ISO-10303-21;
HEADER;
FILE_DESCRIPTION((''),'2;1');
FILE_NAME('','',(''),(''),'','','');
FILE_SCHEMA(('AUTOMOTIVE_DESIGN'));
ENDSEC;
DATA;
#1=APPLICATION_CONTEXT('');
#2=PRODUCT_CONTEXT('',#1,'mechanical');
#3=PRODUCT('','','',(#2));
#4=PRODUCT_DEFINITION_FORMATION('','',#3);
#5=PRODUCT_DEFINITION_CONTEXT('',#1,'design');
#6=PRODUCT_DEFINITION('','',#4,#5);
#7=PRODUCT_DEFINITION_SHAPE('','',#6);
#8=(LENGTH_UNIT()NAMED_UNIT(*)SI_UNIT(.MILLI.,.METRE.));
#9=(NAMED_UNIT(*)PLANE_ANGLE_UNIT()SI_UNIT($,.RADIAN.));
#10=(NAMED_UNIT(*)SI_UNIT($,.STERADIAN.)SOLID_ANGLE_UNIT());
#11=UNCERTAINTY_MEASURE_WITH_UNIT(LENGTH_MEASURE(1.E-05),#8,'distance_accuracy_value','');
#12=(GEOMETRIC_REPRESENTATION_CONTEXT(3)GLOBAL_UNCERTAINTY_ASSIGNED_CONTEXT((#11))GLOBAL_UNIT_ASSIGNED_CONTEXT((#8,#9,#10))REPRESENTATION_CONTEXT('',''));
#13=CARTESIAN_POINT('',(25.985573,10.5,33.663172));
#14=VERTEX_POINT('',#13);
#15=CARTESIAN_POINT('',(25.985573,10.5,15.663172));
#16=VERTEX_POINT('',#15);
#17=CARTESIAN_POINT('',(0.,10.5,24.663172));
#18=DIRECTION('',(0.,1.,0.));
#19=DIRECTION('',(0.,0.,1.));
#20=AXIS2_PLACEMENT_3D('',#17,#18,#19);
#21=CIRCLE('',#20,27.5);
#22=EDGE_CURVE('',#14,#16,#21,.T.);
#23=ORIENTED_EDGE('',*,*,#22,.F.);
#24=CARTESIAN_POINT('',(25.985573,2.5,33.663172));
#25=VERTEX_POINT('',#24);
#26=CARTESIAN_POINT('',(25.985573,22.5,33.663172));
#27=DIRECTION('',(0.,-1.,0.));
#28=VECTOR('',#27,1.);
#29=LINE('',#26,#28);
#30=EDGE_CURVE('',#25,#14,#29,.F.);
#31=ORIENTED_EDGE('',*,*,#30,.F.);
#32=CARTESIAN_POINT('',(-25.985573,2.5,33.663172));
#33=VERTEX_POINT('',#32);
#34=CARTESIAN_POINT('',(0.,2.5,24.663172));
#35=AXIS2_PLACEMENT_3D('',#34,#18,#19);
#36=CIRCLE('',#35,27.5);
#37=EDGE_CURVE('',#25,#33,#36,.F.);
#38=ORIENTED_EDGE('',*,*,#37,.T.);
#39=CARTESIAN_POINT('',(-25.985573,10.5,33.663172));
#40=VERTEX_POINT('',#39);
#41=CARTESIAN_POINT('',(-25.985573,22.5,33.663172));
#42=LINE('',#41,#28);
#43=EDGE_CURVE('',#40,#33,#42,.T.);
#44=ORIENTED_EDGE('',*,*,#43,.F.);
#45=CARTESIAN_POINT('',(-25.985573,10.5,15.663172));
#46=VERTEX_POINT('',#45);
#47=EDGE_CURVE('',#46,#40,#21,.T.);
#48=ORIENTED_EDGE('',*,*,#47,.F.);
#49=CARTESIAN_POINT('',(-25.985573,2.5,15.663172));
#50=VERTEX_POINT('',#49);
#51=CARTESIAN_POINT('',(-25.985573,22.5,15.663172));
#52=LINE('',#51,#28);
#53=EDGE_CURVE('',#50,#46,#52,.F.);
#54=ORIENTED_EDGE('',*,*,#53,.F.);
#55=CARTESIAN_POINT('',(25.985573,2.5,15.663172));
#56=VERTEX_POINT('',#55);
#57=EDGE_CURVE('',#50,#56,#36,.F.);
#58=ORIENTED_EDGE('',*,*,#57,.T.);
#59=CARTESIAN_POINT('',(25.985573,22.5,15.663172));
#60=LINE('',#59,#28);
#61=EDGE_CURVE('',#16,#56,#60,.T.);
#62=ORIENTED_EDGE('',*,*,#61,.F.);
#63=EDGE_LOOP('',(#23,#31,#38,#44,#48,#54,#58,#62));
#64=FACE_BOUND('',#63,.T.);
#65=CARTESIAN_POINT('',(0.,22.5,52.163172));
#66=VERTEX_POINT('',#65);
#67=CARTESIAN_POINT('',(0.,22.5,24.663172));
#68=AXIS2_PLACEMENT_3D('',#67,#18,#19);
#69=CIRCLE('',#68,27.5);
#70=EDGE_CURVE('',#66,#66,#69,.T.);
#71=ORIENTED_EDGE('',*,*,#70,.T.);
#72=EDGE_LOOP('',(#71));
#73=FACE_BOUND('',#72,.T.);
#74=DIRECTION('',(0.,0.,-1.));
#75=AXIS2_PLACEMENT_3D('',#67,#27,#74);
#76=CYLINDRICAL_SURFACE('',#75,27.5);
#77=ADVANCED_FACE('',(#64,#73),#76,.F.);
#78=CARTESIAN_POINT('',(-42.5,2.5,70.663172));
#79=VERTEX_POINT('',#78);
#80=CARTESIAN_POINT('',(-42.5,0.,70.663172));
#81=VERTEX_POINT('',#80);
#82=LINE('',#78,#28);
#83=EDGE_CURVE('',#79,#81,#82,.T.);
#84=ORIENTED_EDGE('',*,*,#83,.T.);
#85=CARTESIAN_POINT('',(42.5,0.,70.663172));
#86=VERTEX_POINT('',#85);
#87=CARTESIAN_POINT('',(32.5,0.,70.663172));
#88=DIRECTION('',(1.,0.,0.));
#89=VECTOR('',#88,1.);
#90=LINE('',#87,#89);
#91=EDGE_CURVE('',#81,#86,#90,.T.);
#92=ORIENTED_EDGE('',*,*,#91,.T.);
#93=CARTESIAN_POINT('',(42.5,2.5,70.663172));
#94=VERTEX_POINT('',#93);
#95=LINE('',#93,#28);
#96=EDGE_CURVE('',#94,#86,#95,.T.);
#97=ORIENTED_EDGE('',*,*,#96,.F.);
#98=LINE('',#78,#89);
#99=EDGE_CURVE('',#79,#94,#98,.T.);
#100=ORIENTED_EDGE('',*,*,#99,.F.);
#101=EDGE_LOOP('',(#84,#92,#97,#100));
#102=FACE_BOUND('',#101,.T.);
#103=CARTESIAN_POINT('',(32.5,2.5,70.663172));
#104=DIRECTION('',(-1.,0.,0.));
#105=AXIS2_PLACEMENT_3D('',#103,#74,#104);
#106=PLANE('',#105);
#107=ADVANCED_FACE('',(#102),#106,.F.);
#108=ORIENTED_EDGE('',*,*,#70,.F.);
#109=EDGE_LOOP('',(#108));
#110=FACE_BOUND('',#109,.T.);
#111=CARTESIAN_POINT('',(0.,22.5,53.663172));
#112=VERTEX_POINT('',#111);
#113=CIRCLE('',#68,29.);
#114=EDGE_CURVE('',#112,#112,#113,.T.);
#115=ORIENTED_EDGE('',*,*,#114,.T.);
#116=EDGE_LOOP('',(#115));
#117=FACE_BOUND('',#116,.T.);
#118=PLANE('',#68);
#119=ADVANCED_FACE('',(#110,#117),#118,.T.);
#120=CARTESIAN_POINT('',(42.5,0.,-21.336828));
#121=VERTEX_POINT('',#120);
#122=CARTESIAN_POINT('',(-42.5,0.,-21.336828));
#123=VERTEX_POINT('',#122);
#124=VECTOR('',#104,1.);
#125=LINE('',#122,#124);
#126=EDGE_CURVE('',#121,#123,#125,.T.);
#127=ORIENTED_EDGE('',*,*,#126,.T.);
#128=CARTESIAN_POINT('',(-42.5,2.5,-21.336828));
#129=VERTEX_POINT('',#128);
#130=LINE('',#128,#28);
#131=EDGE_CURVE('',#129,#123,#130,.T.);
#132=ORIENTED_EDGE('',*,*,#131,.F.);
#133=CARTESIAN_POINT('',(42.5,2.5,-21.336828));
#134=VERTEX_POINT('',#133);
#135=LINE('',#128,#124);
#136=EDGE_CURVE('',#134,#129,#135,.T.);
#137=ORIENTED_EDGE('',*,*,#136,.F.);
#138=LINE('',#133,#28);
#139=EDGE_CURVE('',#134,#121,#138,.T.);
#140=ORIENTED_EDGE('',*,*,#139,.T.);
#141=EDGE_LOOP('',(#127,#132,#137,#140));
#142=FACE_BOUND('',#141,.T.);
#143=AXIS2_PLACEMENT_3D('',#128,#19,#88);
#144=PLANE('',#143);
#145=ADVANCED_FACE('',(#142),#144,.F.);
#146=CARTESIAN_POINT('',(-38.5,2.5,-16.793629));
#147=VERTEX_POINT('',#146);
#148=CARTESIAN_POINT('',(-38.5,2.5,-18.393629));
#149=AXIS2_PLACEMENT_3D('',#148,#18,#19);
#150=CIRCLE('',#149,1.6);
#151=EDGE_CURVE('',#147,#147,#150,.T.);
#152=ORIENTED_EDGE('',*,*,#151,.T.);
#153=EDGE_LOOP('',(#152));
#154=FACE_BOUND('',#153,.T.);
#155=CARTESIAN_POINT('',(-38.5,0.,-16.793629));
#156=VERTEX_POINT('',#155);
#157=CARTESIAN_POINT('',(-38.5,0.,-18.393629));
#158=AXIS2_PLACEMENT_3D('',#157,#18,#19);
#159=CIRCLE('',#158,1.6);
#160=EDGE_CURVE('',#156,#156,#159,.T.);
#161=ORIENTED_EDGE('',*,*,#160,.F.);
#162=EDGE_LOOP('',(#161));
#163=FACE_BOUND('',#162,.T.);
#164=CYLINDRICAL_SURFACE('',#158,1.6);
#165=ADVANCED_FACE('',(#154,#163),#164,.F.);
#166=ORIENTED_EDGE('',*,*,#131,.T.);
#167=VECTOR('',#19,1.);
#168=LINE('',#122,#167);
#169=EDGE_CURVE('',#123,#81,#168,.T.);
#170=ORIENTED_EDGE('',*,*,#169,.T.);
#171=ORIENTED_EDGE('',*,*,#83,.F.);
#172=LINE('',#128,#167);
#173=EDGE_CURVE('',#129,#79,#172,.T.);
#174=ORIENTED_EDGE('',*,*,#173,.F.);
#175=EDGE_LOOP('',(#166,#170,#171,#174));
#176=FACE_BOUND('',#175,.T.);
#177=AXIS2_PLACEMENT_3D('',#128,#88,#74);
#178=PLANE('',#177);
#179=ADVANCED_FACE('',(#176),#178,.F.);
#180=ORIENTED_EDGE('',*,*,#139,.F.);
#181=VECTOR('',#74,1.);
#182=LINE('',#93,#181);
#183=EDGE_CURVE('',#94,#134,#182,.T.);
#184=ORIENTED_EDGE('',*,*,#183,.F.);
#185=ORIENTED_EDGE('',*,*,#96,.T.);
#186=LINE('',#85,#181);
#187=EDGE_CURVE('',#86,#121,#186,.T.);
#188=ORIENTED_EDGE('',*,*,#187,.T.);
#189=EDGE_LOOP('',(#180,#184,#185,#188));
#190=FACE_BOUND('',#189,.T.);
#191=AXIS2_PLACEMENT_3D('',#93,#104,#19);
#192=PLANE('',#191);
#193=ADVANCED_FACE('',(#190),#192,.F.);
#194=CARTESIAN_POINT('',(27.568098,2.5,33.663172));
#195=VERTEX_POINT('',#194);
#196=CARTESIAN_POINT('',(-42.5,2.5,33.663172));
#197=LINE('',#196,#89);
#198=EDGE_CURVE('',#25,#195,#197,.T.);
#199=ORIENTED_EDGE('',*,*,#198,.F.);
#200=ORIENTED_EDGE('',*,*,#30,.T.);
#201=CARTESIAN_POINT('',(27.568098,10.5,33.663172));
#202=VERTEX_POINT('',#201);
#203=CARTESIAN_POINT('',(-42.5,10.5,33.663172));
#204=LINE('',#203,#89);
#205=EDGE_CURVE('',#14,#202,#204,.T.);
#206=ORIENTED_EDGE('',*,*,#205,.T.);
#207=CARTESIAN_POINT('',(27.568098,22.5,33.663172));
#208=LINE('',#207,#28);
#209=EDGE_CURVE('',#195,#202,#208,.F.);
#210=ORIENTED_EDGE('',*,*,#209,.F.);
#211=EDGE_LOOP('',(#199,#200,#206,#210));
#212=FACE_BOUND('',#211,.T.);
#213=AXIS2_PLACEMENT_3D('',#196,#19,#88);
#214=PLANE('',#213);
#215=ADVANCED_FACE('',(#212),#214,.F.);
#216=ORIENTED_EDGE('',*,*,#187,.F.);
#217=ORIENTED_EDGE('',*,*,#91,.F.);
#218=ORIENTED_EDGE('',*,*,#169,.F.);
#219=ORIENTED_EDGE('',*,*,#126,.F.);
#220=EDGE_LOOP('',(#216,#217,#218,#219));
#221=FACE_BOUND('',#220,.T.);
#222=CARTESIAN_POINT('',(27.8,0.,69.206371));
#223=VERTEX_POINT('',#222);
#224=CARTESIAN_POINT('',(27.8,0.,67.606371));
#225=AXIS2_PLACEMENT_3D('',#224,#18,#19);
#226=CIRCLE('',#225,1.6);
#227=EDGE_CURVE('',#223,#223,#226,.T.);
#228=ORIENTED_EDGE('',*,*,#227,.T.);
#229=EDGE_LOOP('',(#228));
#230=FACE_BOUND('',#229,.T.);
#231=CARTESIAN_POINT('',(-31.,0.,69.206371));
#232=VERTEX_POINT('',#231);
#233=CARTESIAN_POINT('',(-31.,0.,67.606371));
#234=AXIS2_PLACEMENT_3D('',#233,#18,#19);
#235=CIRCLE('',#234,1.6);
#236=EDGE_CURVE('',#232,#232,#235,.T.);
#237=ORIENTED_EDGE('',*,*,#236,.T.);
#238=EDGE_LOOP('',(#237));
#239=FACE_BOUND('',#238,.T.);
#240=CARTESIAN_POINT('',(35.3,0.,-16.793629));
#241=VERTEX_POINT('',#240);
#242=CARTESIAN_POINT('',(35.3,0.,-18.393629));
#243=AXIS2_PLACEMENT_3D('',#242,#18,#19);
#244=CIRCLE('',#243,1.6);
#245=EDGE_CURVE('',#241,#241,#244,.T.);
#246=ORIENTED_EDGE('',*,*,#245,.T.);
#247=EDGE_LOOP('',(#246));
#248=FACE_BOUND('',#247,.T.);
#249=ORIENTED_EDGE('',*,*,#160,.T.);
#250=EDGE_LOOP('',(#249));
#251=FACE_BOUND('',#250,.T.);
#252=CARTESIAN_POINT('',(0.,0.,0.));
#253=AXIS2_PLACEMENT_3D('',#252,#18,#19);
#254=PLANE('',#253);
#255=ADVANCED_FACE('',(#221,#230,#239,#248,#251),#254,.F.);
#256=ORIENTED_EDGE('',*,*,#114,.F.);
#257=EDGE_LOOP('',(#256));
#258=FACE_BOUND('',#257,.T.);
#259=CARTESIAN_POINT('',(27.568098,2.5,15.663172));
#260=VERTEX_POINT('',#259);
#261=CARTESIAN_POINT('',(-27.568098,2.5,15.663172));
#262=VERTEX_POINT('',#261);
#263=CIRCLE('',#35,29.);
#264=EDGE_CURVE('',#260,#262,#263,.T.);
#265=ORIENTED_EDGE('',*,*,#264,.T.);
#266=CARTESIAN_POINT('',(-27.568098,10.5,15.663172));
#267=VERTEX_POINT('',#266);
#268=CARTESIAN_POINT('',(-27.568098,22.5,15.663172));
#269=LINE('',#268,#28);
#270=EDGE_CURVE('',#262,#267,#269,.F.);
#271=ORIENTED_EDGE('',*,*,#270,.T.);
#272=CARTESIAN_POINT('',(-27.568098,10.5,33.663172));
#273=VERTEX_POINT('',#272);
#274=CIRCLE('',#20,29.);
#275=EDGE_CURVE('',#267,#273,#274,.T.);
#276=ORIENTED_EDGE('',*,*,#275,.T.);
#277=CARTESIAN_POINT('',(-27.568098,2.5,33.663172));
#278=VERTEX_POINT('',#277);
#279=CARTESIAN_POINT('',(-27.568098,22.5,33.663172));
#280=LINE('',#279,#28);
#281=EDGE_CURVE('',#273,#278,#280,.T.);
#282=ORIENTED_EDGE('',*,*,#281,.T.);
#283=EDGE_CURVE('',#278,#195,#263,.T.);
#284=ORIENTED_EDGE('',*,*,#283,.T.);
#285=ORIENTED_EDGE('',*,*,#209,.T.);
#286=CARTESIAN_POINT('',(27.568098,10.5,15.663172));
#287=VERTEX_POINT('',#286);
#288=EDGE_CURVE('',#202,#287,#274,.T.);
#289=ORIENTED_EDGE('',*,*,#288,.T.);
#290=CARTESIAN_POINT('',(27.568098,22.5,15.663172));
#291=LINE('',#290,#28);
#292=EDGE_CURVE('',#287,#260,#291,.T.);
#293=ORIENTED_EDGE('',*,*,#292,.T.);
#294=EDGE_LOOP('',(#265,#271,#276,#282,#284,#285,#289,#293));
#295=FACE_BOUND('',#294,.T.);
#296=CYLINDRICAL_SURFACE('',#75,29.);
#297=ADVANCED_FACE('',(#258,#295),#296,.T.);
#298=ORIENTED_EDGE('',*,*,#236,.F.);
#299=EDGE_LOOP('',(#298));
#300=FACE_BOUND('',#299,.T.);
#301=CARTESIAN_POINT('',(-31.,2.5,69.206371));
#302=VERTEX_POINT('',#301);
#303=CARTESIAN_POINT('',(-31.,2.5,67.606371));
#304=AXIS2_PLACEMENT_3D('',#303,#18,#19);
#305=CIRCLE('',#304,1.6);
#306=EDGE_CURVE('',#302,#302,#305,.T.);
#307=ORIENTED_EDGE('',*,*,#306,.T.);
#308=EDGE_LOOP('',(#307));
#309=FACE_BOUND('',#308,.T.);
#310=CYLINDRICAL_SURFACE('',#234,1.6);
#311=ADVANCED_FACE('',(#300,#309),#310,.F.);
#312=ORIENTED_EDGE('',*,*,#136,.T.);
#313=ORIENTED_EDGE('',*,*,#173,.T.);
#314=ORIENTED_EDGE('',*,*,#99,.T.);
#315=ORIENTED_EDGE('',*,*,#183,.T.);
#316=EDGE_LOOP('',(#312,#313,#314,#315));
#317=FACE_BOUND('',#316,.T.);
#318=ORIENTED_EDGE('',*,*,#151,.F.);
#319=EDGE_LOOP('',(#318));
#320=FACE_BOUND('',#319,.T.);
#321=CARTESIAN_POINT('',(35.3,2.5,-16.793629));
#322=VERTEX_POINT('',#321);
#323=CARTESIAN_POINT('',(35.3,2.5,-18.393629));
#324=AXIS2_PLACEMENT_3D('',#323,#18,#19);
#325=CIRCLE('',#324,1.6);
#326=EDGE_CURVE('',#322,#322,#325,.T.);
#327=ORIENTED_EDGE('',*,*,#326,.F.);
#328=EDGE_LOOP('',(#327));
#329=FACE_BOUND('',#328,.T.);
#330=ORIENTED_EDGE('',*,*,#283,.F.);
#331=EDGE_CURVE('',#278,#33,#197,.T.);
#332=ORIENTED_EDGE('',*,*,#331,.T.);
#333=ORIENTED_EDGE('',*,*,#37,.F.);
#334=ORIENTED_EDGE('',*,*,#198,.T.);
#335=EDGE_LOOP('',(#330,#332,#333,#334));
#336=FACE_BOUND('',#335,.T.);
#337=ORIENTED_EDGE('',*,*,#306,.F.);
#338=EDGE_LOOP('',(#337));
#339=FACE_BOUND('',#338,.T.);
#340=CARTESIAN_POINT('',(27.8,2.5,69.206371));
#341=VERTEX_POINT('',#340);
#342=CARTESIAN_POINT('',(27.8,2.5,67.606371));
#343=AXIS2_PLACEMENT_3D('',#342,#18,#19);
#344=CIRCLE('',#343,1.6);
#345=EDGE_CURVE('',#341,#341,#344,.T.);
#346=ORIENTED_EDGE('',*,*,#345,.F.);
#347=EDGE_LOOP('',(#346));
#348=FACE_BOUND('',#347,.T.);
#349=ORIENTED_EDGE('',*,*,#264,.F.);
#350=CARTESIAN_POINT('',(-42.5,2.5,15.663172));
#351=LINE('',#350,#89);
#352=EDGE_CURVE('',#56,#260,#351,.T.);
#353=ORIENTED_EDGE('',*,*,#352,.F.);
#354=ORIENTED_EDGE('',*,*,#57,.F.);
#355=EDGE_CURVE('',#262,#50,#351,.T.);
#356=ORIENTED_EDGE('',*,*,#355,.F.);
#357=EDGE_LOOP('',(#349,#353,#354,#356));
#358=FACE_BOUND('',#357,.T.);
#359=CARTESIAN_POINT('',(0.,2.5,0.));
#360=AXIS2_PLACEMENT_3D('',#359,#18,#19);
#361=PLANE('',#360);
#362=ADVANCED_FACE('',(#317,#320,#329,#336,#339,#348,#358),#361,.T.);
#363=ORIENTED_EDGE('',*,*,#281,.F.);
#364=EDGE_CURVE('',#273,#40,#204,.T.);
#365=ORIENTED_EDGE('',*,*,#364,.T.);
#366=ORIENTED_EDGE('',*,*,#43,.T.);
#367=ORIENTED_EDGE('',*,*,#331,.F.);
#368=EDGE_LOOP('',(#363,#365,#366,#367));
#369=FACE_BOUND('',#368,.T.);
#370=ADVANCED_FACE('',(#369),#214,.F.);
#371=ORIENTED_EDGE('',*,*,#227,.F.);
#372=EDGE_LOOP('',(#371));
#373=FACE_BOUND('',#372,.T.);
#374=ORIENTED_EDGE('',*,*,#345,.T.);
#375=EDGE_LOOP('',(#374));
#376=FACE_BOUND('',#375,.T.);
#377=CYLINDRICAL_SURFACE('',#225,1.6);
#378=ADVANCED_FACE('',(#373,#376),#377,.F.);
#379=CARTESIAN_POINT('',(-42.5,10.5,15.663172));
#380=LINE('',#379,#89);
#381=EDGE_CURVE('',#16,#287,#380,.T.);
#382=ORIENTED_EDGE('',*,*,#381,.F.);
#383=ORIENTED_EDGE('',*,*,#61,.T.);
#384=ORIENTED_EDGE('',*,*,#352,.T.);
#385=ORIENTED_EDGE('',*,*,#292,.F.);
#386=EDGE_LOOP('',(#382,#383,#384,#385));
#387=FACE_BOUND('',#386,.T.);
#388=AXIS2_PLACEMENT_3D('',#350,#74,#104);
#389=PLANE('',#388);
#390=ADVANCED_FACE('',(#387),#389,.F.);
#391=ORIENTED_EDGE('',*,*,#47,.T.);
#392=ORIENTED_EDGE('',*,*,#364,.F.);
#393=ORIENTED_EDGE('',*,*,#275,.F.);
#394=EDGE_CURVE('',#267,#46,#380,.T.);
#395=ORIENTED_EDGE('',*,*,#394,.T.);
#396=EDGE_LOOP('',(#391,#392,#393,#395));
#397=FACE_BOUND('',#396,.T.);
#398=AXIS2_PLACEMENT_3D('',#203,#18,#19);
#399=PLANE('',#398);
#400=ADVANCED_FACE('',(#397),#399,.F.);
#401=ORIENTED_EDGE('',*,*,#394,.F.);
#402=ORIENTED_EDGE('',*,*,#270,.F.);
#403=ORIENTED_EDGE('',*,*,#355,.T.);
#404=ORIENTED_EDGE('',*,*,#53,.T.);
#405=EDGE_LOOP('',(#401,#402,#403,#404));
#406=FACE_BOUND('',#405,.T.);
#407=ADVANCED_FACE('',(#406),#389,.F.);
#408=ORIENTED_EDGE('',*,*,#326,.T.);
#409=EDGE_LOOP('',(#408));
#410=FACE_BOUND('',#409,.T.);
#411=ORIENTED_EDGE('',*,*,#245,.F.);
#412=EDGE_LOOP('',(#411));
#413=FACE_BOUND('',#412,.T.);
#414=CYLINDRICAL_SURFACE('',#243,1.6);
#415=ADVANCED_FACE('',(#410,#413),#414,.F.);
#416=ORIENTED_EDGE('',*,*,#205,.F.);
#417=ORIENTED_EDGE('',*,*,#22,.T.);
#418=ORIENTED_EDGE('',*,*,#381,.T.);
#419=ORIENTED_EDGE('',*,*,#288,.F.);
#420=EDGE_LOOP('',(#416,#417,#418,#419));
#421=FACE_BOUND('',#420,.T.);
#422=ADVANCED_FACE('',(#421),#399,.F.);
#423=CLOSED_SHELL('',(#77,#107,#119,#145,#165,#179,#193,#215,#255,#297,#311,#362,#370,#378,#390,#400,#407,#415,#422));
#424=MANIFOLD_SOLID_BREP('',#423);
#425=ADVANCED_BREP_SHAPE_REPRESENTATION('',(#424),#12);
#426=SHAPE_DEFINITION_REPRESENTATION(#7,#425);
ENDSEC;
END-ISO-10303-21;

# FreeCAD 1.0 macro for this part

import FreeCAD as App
import Part
import Sketcher
from FreeCAD import Vector

doc = App.newDocument("Part")
body = doc.addObject("PartDesign::Body", "Body")

sketch1 = body.newObject("Sketcher::SketchObject", "Sketch")
sketch1.AttachmentSupport = (doc.getObject("XZ_Plane"), [""])
sketch1.MapMode = "FlatFace"
sketch1.addGeometry([
    Part.LineSegment(Vector(42, -21, 0), Vector(-42, -21, 0)),
    Part.LineSegment(Vector(-42, -21, 0), Vector(-42, 71, 0)),
    Part.LineSegment(Vector(-42, 71, 0), Vector(42, 71, 0)),
    Part.LineSegment(Vector(42, 71, 0), Vector(42, -21, 0)),
], False)
sketch1.addConstraint([
    Sketcher.Constraint("Coincident", 0, 2, 1, 1),
    Sketcher.Constraint("Coincident", 1, 2, 2, 1),
    Sketcher.Constraint("Coincident", 2, 2, 3, 1),
    Sketcher.Constraint("Coincident", 3, 2, 0, 1),
    Sketcher.Constraint("Horizontal", 0),
    Sketcher.Constraint("Vertical", 1),
    Sketcher.Constraint("Horizontal", 2),
    Sketcher.Constraint("Vertical", 3),
    Sketcher.Constraint("DistanceX", 0, 2, 0, 1, 85.0),
    Sketcher.Constraint("DistanceY", 1, 1, 1, 2, 92.0),
    Sketcher.Constraint("DistanceX", 0, 2, -1, 1, 42.5),
    Sketcher.Constraint("DistanceY", 0, 2, -1, 1, 21.336828),
])
pad1 = body.newObject("PartDesign::Pad", "Pad")
pad1.Profile = sketch1
pad1.Length = 2.5
pad1.Reversed = True

sketch2 = body.newObject("Sketcher::SketchObject", "Sketch001")
sketch2.AttachmentSupport = (doc.getObject("XZ_Plane"), [""])
sketch2.MapMode = "FlatFace"
sketch2.AttachmentOffset = App.Placement(Vector(0, 0, -2.5), App.Rotation())
sketch2.addGeometry([
    Part.Circle(Vector(-38.5, -18.4, 0), Vector(0, 0, 1), 1.6),
    Part.Circle(Vector(35.3, -18.4, 0), Vector(0, 0, 1), 1.6),
    Part.Circle(Vector(-31, 67.6, 0), Vector(0, 0, 1), 1.6),
    Part.Circle(Vector(27.8, 67.6, 0), Vector(0, 0, 1), 1.6),
], False)
sketch2.addConstraint([
    Sketcher.Constraint("Equal", 0, 1),
    Sketcher.Constraint("Equal", 1, 2),
    Sketcher.Constraint("Equal", 2, 3),
    Sketcher.Constraint("Horizontal", 0, 3, 1, 3),
    Sketcher.Constraint("Horizontal", 2, 3, 3, 3),
    Sketcher.Constraint("Diameter", 0, 3.2),
    Sketcher.Constraint("DistanceX", 2, 3, -1, 1, 31.0),
    Sketcher.Constraint("DistanceY", 0, 3, 2, 3, 86.0),
    Sketcher.Constraint("DistanceX", 0, 3, -1, 1, 38.5),
    Sketcher.Constraint("DistanceX", -1, 1, 1, 3, 35.3),
    Sketcher.Constraint("DistanceX", -1, 1, 3, 3, 27.8),
    Sketcher.Constraint("DistanceY", 0, 3, -1, 1, 18.393629),
])
pocket1 = body.newObject("PartDesign::Pocket", "Pocket")
pocket1.Profile = sketch2
pocket1.Length = 2.5
pocket1.Reversed = True

sketch3 = body.newObject("Sketcher::SketchObject", "Sketch002")
sketch3.AttachmentSupport = (doc.getObject("XZ_Plane"), [""])
sketch3.MapMode = "FlatFace"
sketch3.AttachmentOffset = App.Placement(Vector(0, 0, -2.5), App.Rotation())
sketch3.addGeometry([
    Part.Circle(Vector(0, 25, 0), Vector(0, 0, 1), 29),
    Part.Circle(Vector(0, 25, 0), Vector(0, 0, 1), 28),
], False)
sketch3.addConstraint([
    Sketcher.Constraint("Coincident", 1, 3, 0, 3),
    Sketcher.Constraint("PointOnObject", 0, 3, -2),
    Sketcher.Constraint("Diameter", 0, 58.0),
    Sketcher.Constraint("Diameter", 1, 55.0),
    Sketcher.Constraint("DistanceY", -1, 1, 0, 3, 24.663172),
])
pad2 = body.newObject("PartDesign::Pad", "Pad001")
pad2.Profile = sketch3
pad2.Length = 20
pad2.Reversed = True

sketch4 = body.newObject("Sketcher::SketchObject", "Sketch003")
sketch4.AttachmentSupport = (doc.getObject("YZ_Plane"), [""])
sketch4.MapMode = "FlatFace"
sketch4.addGeometry([
    Part.LineSegment(Vector(10, 34, 0), Vector(2, 34, 0)),
    Part.LineSegment(Vector(2, 34, 0), Vector(2, 16, 0)),
    Part.LineSegment(Vector(2, 16, 0), Vector(10, 16, 0)),
    Part.LineSegment(Vector(10, 16, 0), Vector(10, 34, 0)),
], False)
sketch4.addConstraint([
    Sketcher.Constraint("Coincident", 0, 2, 1, 1),
    Sketcher.Constraint("Coincident", 1, 2, 2, 1),
    Sketcher.Constraint("Coincident", 2, 2, 3, 1),
    Sketcher.Constraint("Coincident", 3, 2, 0, 1),
    Sketcher.Constraint("Horizontal", 0),
    Sketcher.Constraint("Vertical", 1),
    Sketcher.Constraint("Horizontal", 2),
    Sketcher.Constraint("Vertical", 3),
    Sketcher.Constraint("DistanceX", 0, 2, 0, 1, 8.0),
    Sketcher.Constraint("DistanceY", 1, 2, 1, 1, 18.0),
    Sketcher.Constraint("DistanceX", -1, 1, 0, 2, 2.5),
    Sketcher.Constraint("DistanceY", -1, 1, 0, 2, 33.663172),
])
pocket2 = body.newObject("PartDesign::Pocket", "Pocket001")
pocket2.Profile = sketch4
pocket2.Type = "ThroughAll"
pocket2.Midplane = True

doc.recompute()
